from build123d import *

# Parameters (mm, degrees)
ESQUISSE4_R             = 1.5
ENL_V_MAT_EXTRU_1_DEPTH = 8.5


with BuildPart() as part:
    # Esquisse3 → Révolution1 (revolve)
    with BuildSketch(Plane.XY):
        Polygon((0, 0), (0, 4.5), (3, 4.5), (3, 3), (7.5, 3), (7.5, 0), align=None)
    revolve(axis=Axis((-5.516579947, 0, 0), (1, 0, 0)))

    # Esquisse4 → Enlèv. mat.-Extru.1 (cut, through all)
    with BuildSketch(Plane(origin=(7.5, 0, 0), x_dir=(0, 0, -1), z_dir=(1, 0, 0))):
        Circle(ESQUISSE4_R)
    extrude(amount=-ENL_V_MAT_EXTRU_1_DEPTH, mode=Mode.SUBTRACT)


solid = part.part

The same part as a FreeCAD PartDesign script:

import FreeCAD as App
import Part
import Sketcher
from FreeCAD import Vector
Q = App.Units.Quantity


def add_polygon(sketch, points):
    """Adds a closed chain of lines whose ends are joined by coincident constraints."""
    first, n = sketch.GeometryCount, len(points)
    for a, b in zip(points, points[1:] + points[:1]):
        sketch.addGeometry(Part.LineSegment(App.Vector(*a, 0), App.Vector(*b, 0)), False)
    for i in range(n):
        sketch.addConstraint(Sketcher.Constraint("Coincident", first + i, 2, first + (i + 1) % n, 1))

doc = App.newDocument("Part")
body = doc.addObject("PartDesign::Body", "Body")

# Sketch on XY plane
sketch1 = doc.addObject("Sketcher::SketchObject", "Sketch")
body.addObject(sketch1)
sketch1.AttachmentSupport = (doc.XY_Plane, [""])
sketch1.MapMode = "FlatFace"
add_polygon(sketch1, [(0, 4.5), (0, 0), (7.5, 0), (7.5, 3), (3, 3), (3, 4.5)])  # lines 0-5
sketch1.addConstraint([
    Sketcher.Constraint("Vertical", 0),
    Sketcher.Constraint("Horizontal", 1),
    Sketcher.Constraint("Vertical", 2),
    Sketcher.Constraint("Horizontal", 3),
    Sketcher.Constraint("Vertical", 4),
    Sketcher.Constraint("Horizontal", 5),
    Sketcher.Constraint("Coincident", 0, 2, -1, 1),
    Sketcher.Constraint("Equal", 3, 0),
    Sketcher.Constraint("Equal", 5, 2),
    Sketcher.Constraint("DistanceX", 5, 2, 5, 1, Q("3 mm")),
    Sketcher.Constraint("DistanceX", 1, 1, 1, 2, Q("7.5 mm")),
])
revolution = doc.addObject("PartDesign::Revolution", "Revolution")
body.addObject(revolution)
revolution.Profile = sketch1
revolution.ReferenceAxis = (sketch1, ["H_Axis"])
revolution.Angle = 360

# Sketch on YZ plane
sketch2 = doc.addObject("Sketcher::SketchObject", "Sketch001")
body.addObject(sketch2)
sketch2.AttachmentSupport = (doc.YZ_Plane, [""])
sketch2.MapMode = "FlatFace"
sketch2.AttachmentOffset = App.Placement(Vector(0, 0, 7.5), App.Rotation())
sketch2.addGeometry(Part.Circle(Vector(0, 0, 0), Vector(0, 0, 1), 1.5), False)
sketch2.addConstraint([
    Sketcher.Constraint("Coincident", 0, 3, -1, 1),
    Sketcher.Constraint("Diameter", 0, Q("3 mm")),
])
pocket1 = doc.addObject("PartDesign::Pocket", "Pocket")
body.addObject(pocket1)
pocket1.Profile = sketch2
pocket1.Type = "ThroughAll"

doc.recompute()
